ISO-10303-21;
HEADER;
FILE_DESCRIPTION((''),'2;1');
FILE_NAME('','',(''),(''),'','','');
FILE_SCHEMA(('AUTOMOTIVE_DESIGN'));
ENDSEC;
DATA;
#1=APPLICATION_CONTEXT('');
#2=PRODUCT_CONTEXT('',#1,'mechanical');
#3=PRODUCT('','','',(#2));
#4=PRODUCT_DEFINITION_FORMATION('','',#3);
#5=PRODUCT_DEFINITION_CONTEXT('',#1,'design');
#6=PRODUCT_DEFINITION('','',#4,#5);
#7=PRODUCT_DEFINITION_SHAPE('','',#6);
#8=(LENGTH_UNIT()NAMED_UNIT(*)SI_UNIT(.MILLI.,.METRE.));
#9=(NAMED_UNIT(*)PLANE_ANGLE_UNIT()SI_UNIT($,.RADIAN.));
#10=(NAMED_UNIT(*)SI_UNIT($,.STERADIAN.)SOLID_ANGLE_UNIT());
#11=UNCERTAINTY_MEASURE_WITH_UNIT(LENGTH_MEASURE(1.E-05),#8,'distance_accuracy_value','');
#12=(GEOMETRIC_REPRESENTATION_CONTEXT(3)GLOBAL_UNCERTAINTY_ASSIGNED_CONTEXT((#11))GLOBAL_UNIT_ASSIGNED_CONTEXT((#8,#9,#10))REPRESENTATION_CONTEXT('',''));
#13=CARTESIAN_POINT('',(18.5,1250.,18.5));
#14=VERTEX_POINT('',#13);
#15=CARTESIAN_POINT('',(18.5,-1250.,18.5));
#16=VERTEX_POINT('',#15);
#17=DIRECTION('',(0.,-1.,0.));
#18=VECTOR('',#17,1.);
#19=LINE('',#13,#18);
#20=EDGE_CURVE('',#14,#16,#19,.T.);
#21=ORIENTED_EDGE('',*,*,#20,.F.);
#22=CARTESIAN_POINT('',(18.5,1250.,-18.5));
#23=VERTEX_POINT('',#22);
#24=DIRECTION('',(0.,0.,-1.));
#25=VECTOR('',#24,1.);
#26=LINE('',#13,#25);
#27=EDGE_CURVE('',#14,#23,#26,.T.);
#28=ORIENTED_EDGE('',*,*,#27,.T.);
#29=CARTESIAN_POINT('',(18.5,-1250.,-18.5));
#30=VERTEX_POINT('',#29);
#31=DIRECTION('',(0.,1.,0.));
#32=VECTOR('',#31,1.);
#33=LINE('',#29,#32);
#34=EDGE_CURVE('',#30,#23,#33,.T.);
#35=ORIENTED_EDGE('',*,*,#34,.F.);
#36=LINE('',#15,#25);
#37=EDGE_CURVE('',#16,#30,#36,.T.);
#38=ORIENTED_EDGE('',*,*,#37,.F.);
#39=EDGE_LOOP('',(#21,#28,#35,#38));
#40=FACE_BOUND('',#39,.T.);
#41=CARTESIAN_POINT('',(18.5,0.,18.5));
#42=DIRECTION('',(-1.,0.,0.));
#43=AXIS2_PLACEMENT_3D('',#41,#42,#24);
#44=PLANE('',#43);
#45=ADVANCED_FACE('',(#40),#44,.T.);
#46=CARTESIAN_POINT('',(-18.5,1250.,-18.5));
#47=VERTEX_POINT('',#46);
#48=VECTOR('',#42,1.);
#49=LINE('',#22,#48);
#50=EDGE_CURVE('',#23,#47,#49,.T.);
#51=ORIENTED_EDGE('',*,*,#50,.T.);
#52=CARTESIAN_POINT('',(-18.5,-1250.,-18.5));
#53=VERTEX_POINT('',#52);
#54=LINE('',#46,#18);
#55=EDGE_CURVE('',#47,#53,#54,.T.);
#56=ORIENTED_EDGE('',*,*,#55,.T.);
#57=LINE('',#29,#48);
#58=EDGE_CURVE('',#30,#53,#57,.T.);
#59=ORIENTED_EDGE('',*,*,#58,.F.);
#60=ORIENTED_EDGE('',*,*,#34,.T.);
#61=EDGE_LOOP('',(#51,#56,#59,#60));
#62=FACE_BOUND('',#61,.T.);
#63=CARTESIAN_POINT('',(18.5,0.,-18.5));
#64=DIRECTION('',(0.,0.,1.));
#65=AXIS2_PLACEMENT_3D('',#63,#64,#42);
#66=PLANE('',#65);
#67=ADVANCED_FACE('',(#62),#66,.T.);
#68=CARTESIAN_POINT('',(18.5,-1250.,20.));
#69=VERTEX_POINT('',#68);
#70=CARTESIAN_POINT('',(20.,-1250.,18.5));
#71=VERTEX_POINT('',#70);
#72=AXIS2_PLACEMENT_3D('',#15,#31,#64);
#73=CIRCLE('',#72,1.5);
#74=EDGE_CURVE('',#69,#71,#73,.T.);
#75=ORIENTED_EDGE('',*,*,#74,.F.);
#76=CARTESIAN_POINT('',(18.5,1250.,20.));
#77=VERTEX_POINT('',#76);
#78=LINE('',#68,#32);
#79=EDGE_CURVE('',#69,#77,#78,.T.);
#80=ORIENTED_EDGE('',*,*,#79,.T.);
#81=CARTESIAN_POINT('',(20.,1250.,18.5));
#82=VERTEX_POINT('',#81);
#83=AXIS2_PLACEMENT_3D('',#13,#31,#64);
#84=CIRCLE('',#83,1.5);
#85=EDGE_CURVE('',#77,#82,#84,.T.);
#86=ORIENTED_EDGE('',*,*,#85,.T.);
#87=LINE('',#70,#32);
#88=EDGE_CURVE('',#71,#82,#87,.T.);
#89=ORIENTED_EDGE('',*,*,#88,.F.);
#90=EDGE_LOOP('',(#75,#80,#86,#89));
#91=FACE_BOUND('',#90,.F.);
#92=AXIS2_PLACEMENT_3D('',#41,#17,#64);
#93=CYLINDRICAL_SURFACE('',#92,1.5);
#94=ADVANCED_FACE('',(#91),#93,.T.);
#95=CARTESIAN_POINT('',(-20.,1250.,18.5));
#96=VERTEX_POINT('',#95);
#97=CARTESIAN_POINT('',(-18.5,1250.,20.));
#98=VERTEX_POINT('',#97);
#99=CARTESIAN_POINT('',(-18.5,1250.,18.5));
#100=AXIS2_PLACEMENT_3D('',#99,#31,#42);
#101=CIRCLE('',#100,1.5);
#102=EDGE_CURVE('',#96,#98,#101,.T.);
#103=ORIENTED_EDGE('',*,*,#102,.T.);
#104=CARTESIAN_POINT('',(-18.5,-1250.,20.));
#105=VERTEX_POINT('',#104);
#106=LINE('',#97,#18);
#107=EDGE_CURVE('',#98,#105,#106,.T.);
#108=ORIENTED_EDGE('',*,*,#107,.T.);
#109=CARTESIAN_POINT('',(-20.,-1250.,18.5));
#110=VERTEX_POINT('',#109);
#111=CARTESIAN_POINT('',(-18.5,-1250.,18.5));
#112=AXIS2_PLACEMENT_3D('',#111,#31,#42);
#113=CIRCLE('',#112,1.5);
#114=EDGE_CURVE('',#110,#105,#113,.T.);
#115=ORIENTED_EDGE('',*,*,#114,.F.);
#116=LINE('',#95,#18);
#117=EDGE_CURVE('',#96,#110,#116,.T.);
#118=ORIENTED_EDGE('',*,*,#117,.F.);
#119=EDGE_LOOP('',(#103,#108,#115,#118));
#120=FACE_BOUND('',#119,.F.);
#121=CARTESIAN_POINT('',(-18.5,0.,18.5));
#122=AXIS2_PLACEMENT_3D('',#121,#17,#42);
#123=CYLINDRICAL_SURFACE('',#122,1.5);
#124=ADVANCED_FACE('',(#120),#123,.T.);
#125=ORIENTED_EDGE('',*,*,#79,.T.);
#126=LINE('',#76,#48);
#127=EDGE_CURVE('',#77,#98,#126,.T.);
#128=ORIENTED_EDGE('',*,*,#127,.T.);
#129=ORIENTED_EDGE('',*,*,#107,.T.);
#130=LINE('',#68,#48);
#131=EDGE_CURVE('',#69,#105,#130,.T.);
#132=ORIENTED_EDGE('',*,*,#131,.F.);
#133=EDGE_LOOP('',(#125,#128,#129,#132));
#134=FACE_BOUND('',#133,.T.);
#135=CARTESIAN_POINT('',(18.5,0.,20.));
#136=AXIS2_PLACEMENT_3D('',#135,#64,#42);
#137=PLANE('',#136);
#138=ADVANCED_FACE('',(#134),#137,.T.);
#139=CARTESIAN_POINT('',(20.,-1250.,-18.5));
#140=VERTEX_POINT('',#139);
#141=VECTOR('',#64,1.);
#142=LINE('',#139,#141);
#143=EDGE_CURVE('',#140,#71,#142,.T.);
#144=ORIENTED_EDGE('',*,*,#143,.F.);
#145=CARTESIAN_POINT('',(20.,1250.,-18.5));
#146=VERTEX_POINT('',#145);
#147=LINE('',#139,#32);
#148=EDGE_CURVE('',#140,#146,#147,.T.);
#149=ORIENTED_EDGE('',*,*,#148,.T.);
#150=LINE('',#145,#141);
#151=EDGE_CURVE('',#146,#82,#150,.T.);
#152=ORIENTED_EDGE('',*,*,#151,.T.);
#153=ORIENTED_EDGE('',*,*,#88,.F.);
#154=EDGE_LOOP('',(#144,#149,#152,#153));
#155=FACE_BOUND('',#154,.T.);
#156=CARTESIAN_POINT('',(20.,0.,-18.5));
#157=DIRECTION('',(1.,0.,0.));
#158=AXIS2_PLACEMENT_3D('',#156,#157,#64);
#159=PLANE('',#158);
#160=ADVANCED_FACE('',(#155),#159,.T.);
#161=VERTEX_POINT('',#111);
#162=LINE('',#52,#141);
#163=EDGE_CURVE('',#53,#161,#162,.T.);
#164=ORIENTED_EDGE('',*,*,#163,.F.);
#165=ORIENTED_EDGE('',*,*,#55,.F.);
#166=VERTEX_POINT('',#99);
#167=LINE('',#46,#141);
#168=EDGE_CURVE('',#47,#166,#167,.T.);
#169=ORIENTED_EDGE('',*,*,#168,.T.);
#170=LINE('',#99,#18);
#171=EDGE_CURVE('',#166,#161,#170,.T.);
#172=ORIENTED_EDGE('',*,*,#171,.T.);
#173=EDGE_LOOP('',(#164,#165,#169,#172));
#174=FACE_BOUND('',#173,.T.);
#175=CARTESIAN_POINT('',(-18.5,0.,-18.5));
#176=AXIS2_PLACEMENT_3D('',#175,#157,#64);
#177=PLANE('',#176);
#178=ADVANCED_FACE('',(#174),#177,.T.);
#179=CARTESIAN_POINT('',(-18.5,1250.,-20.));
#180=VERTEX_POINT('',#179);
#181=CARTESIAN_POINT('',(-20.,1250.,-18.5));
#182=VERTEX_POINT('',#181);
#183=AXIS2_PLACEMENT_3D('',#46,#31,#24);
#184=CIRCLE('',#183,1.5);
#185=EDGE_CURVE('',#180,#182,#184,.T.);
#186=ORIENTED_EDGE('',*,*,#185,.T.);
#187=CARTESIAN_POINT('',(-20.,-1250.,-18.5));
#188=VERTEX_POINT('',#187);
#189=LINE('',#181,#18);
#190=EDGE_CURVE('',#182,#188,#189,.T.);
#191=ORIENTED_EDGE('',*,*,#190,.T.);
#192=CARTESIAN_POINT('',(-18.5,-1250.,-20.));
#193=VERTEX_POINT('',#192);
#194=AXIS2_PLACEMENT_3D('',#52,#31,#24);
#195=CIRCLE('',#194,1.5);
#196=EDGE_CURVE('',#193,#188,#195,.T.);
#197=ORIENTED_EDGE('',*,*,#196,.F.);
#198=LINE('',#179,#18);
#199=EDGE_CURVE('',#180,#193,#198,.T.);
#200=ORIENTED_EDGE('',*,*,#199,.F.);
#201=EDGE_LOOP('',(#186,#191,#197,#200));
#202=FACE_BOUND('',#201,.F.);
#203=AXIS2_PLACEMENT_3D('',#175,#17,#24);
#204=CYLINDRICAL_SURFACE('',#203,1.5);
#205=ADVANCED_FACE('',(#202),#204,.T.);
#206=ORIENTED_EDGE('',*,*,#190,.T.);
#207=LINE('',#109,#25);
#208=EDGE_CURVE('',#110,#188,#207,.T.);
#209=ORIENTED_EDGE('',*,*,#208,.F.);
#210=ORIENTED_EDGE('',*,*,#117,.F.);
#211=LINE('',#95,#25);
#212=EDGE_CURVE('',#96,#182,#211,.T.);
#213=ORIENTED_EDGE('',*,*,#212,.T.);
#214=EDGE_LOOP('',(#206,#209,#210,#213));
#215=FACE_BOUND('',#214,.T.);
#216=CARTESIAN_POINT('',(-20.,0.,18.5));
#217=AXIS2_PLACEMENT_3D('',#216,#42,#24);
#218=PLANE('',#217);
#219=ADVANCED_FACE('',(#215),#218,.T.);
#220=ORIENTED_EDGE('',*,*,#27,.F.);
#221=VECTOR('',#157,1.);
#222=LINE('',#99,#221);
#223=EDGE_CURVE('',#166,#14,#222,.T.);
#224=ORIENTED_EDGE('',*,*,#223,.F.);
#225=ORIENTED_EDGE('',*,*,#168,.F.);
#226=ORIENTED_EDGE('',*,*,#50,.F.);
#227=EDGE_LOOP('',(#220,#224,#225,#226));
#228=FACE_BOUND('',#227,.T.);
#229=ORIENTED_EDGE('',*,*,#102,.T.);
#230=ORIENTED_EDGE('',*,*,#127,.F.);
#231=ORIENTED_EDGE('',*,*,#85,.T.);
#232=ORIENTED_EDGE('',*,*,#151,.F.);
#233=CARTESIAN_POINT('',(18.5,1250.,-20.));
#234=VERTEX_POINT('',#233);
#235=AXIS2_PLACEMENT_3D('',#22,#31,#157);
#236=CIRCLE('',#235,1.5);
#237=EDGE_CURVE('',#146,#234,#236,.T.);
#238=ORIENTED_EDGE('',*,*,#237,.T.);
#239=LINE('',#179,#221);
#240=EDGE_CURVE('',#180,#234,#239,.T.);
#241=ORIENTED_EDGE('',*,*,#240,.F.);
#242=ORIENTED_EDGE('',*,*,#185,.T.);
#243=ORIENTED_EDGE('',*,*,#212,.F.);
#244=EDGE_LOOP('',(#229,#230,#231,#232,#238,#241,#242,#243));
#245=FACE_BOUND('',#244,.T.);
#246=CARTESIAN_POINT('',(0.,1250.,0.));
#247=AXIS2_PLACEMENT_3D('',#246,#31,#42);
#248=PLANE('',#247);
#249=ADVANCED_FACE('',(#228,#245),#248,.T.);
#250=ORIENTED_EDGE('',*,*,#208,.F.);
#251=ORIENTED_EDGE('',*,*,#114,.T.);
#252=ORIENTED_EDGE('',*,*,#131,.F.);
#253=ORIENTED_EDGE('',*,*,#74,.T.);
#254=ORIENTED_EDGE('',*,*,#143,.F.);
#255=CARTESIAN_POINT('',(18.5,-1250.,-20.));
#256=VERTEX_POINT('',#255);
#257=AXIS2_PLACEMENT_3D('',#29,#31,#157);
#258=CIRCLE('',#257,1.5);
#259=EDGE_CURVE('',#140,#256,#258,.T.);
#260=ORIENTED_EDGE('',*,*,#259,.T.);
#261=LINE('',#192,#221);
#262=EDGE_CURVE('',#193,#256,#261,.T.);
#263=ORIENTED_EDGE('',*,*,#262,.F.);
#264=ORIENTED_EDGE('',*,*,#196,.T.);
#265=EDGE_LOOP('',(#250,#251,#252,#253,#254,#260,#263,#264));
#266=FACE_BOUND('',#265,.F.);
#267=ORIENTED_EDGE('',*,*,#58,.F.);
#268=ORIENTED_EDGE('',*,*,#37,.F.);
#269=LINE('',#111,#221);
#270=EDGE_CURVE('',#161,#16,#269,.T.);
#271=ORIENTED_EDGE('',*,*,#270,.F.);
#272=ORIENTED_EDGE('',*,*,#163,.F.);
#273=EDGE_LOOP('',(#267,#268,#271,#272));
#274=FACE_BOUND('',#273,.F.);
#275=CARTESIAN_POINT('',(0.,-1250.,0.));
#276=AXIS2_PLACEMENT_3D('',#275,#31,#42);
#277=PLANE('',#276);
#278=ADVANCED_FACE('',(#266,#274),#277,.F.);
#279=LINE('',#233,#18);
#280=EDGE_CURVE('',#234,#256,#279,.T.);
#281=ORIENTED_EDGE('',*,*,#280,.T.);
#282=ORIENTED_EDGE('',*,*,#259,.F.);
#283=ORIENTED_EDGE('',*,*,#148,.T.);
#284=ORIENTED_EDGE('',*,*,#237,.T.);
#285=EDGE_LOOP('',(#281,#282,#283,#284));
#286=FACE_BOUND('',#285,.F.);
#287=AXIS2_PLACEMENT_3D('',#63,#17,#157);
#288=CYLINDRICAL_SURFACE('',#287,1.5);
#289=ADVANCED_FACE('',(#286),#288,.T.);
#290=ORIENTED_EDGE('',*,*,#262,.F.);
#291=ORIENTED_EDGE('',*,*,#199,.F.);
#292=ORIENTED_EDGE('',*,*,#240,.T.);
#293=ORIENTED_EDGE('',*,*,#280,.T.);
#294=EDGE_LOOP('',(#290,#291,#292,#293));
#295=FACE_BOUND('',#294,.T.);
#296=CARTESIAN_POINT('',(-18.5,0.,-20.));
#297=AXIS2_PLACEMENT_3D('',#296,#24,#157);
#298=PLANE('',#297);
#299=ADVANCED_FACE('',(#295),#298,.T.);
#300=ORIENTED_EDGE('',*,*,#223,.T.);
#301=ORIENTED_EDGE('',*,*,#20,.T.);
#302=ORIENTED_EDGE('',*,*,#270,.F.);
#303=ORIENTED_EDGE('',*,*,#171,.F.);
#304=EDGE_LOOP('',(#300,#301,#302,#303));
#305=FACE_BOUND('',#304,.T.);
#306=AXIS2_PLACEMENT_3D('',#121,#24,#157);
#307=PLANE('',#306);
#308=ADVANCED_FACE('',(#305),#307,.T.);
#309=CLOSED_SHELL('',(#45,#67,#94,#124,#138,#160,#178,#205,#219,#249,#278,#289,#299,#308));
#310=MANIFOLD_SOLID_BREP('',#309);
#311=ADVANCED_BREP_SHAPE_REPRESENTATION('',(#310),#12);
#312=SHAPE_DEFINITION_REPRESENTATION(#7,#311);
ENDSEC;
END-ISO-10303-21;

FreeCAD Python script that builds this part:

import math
import FreeCAD as App
import Part
import Sketcher
from FreeCAD import Vector


def add_polygon(sketch, points):
    """Adds a closed chain of lines whose ends are joined by coincident constraints."""
    first, n = sketch.GeometryCount, len(points)
    for a, b in zip(points, points[1:] + points[:1]):
        sketch.addGeometry(Part.LineSegment(App.Vector(*a, 0), App.Vector(*b, 0)), False)
    for i in range(n):
        sketch.addConstraint(Sketcher.Constraint("Coincident", first + i, 2, first + (i + 1) % n, 1))

doc = App.newDocument("Part")
body = doc.addObject("PartDesign::Body", "Body")

sketch1 = body.newObject("Sketcher::SketchObject", "Sketch")
sketch1.AttachmentSupport = (doc.getObject("XZ_Plane"), [""])
sketch1.MapMode = "FlatFace"
sketch1.addGeometry(Part.LineSegment(Vector(-18.5, 20, 0), Vector(18.5, 20, 0)), False)
sketch1.addGeometry(Part.ArcOfCircle(Part.Circle(Vector(18.5, 18.5, 0), Vector(0, 0, 1), 1.5), math.radians(0), math.radians(90)), False)
sketch1.addGeometry(Part.LineSegment(Vector(20, 18.5, 0), Vector(20, -18.5, 0)), False)
sketch1.addGeometry(Part.ArcOfCircle(Part.Circle(Vector(18.5, -18.5, 0), Vector(0, 0, 1), 1.5), math.radians(-90), math.radians(0)), False)
sketch1.addGeometry(Part.LineSegment(Vector(18.5, -20, 0), Vector(-18.5, -20, 0)), False)
sketch1.addGeometry(Part.ArcOfCircle(Part.Circle(Vector(-18.5, -18.5, 0), Vector(0, 0, 1), 1.5), math.radians(180), math.radians(270)), False)
sketch1.addGeometry(Part.LineSegment(Vector(-20, -18.5, 0), Vector(-20, 18.5, 0)), False)
sketch1.addGeometry(Part.ArcOfCircle(Part.Circle(Vector(-18.5, 18.5, 0), Vector(0, 0, 1), 1.5), math.radians(90), math.radians(180)), False)
add_polygon(sketch1, [(-18.5, -18.5), (18.5, -18.5), (18.5, 18.5), (-18.5, 18.5)])
sketch1.addConstraint([
    Sketcher.Constraint("Tangent", 0, 2, 1, 2),
    Sketcher.Constraint("Tangent", 1, 1, 2, 1),
    Sketcher.Constraint("Tangent", 2, 2, 3, 2),
    Sketcher.Constraint("Tangent", 3, 1, 4, 1),
    Sketcher.Constraint("Tangent", 4, 2, 5, 2),
    Sketcher.Constraint("Tangent", 5, 1, 6, 1),
    Sketcher.Constraint("Tangent", 6, 2, 7, 2),
    Sketcher.Constraint("Tangent", 7, 1, 0, 1),
    Sketcher.Constraint("Horizontal", 0),
    Sketcher.Constraint("Vertical", 2),
    Sketcher.Constraint("Horizontal", 4),
    Sketcher.Constraint("Vertical", 6),
    Sketcher.Constraint("Horizontal", 8),
    Sketcher.Constraint("Vertical", 9),
    Sketcher.Constraint("Horizontal", 10),
    Sketcher.Constraint("Vertical", 11),
    Sketcher.Constraint("Coincident", 8, 2, 3, 3),
    Sketcher.Constraint("Coincident", 9, 2, 1, 3),
    Sketcher.Constraint("Coincident", 10, 2, 7, 3),
    Sketcher.Constraint("Equal", 3, 5),
    Sketcher.Constraint("Symmetric", 1, 3, 5, 3, -1, 1),
    Sketcher.Constraint("Equal", 10, 2),
    Sketcher.Constraint("Radius", 1, 1.5),
    Sketcher.Constraint("DistanceX", 0, 1, 0, 2, 37.0),
])
pad1 = body.newObject("PartDesign::Pad", "Pad")
pad1.Profile = sketch1
pad1.Length = 2500
pad1.Midplane = True

doc.recompute()
